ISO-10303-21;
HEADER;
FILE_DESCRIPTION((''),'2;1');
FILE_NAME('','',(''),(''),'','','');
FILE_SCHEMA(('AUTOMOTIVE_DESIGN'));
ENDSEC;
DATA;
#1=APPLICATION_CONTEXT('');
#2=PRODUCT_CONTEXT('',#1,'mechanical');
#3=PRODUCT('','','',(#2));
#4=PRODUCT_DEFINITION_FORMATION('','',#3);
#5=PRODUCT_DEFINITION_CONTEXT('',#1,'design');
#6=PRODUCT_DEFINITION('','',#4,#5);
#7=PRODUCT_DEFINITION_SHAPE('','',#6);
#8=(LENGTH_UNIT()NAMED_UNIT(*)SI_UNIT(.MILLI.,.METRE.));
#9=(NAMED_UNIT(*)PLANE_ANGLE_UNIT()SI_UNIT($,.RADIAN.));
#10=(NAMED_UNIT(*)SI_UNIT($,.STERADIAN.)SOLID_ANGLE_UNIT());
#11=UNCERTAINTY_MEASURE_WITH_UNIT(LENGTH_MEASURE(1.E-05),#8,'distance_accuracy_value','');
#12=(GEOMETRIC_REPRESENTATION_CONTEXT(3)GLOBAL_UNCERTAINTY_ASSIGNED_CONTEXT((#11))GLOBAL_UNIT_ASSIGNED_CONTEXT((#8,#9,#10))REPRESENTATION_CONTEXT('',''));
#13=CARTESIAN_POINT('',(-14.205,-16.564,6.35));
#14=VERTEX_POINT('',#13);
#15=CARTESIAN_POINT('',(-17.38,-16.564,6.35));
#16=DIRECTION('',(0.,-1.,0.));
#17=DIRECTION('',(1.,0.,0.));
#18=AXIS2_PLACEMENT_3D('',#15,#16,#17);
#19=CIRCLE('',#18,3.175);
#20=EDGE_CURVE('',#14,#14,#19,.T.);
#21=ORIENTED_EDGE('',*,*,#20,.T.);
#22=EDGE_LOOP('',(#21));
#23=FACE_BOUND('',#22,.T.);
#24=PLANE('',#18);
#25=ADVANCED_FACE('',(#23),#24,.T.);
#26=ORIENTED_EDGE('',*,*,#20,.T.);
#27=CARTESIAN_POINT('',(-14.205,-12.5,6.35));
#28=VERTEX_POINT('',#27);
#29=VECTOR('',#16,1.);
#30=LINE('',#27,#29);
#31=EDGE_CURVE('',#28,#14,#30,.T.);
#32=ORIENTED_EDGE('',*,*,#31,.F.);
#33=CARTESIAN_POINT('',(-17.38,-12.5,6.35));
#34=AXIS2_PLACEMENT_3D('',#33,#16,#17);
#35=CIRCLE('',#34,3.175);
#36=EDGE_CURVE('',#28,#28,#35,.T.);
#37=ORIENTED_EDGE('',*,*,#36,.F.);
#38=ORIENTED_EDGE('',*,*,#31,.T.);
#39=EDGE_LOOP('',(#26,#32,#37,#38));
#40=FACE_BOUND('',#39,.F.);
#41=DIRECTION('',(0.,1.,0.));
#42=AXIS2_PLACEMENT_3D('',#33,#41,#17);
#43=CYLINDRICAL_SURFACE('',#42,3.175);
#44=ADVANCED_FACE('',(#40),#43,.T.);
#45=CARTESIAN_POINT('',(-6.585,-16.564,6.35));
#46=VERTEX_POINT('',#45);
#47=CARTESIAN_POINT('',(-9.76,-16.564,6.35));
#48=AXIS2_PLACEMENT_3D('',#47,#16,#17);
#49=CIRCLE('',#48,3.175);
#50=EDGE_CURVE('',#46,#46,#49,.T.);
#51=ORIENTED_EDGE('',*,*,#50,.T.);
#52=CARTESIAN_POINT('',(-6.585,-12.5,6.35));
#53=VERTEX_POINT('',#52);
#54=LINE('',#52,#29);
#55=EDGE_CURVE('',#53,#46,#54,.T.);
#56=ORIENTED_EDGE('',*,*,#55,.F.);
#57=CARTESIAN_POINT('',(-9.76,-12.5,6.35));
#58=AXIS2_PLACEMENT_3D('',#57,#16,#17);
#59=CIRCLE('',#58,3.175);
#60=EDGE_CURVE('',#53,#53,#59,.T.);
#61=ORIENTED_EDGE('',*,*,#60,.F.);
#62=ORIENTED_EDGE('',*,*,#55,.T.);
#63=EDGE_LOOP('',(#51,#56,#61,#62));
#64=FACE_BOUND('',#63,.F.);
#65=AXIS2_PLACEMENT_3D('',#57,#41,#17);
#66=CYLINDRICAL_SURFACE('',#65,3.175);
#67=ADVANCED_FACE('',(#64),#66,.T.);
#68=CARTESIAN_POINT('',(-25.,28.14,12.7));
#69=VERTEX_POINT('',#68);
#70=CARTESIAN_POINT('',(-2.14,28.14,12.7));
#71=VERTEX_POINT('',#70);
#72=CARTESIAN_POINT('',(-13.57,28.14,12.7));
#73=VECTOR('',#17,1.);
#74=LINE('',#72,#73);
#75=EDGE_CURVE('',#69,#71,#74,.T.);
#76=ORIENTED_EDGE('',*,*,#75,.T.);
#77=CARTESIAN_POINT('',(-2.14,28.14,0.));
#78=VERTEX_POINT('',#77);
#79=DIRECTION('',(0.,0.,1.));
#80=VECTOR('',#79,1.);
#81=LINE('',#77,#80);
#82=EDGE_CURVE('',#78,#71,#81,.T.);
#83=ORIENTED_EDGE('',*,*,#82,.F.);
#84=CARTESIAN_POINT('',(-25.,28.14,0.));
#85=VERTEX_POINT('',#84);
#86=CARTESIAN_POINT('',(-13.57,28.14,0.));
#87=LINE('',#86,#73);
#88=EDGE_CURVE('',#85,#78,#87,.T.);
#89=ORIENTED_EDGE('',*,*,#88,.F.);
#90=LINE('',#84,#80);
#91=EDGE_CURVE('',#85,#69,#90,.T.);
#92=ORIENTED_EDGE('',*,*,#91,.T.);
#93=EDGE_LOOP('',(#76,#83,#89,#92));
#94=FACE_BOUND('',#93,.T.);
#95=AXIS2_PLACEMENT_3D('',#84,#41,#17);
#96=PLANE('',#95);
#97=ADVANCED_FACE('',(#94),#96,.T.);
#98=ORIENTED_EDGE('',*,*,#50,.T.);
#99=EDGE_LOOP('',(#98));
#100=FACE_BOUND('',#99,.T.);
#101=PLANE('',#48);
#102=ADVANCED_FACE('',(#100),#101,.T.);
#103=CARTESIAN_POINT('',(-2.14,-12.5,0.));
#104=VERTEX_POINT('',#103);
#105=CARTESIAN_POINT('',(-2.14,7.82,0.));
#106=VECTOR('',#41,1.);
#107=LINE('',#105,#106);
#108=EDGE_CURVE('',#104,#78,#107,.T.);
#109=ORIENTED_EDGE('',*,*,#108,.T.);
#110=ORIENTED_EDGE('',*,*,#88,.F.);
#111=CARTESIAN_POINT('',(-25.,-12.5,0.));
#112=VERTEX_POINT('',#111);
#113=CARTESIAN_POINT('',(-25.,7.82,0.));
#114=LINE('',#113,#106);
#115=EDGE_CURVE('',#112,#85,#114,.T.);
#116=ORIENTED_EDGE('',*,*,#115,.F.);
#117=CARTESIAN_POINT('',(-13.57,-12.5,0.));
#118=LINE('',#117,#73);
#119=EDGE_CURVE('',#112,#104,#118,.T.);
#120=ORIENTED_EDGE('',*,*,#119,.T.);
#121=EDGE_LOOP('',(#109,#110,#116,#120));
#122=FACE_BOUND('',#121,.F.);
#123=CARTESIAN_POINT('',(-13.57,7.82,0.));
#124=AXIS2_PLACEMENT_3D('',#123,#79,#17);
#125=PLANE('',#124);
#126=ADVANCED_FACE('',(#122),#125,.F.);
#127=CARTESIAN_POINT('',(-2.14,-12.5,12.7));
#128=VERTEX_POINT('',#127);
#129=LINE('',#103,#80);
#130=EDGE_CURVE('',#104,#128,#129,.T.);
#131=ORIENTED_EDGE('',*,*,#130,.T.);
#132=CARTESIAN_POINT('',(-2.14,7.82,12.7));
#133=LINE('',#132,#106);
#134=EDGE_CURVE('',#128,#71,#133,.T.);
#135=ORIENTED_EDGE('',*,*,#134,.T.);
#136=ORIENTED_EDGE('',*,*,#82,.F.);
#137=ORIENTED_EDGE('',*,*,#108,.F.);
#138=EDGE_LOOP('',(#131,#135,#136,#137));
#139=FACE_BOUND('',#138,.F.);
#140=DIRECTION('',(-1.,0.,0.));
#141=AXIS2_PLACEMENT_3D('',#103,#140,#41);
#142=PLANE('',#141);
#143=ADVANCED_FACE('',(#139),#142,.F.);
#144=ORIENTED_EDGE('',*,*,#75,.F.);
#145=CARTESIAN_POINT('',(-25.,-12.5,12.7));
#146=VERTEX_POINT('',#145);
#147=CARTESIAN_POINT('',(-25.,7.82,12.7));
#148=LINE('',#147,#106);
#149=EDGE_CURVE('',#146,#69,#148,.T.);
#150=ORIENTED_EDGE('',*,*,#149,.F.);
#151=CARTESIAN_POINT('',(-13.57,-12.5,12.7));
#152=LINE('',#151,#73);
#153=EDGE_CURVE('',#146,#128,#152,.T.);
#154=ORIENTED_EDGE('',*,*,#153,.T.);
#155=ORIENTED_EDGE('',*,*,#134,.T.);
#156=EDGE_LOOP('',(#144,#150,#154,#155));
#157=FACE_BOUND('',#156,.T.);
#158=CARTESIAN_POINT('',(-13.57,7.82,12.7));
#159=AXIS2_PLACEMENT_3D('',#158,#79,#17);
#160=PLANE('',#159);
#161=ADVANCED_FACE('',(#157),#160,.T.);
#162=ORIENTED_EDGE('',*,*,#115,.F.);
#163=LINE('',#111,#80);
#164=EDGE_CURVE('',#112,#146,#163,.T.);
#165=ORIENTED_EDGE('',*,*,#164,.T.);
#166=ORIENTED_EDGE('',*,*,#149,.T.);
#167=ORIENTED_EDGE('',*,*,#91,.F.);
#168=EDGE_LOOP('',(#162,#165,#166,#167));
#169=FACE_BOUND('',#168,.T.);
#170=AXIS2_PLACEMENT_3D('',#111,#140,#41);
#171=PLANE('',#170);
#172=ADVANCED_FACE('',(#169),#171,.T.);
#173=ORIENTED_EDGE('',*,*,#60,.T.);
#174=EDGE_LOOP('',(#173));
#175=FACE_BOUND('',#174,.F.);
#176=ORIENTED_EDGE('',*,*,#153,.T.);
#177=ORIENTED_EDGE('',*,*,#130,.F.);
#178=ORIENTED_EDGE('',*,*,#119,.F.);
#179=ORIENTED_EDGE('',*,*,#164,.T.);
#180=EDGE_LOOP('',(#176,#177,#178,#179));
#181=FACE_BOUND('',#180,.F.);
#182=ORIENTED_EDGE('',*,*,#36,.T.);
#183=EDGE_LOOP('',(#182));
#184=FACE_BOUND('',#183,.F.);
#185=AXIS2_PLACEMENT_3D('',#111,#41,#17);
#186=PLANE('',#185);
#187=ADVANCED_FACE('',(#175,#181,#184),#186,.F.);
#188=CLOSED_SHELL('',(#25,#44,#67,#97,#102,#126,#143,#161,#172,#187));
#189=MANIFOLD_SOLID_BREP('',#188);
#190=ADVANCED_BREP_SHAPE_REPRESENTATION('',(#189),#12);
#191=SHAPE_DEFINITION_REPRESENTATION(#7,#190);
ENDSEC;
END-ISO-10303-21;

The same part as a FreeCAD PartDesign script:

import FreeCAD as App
import Part
import Sketcher

V = App.Vector
Q = App.Units.Quantity


def add_polygon(sketch, points):
    """Adds a closed chain of lines whose ends are joined by coincident constraints."""
    first, n = sketch.GeometryCount, len(points)
    for a, b in zip(points, points[1:] + points[:1]):
        sketch.addGeometry(Part.LineSegment(App.Vector(*a, 0), App.Vector(*b, 0)), False)
    for i in range(n):
        sketch.addConstraint(Sketcher.Constraint("Coincident", first + i, 2, first + (i + 1) % n, 1))

doc = App.newDocument("Part")
body = doc.addObject("PartDesign::Body", "Body")

sketch1 = body.newObject("Sketcher::SketchObject", "Sketch")
sketch1.AttachmentSupport = (doc.getObject("XY_Plane"), [""])
sketch1.MapMode = "FlatFace"
add_polygon(sketch1, [(-25, 28), (-25, -12), (-2, -12), (-2, 28)])
sketch1.addConstraint(Sketcher.Constraint("Vertical", 0))
sketch1.addConstraint(Sketcher.Constraint("Horizontal", 1))
sketch1.addConstraint(Sketcher.Constraint("Vertical", 2))
sketch1.addConstraint(Sketcher.Constraint("Horizontal", 3))
sketch1.addConstraint(Sketcher.Constraint("DistanceX", 1, 1, 1, 2, Q("0.9 in")))
sketch1.addConstraint(Sketcher.Constraint("DistanceY", 0, 2, 0, 1, Q("1.6 in")))
sketch1.addConstraint(Sketcher.Constraint("DistanceX", 0, 2, -1, 1, 25.0))
sketch1.addConstraint(Sketcher.Constraint("DistanceY", 0, 2, -1, 1, 12.5))
pad1 = body.newObject("PartDesign::Pad", "Pad")
pad1.Profile = sketch1
pad1.Length = Q("0.5 in")

sketch2 = body.newObject("Sketcher::SketchObject", "Sketch001")
sketch2.AttachmentSupport = (doc.getObject("XZ_Plane"), [""])
sketch2.MapMode = "FlatFace"
sketch2.AttachmentOffset = App.Placement(V(0, 0, 12.5), App.Rotation())
sketch2.addGeometry(Part.Circle(V(-17.4, 6.3, 0), V(0, 0, 1), 3.2), False)
sketch2.addGeometry(Part.Circle(V(-9.8, 6.3, 0), V(0, 0, 1), 3.2), False)
sketch2.addConstraint(Sketcher.Constraint("Equal", 0, 1))
sketch2.addConstraint(Sketcher.Constraint("Horizontal", 0, 3, 1, 3))
sketch2.addConstraint(Sketcher.Constraint("Diameter", 0, Q("0.25 in")))
sketch2.addConstraint(Sketcher.Constraint("DistanceX", 0, 3, 1, 3, Q("0.3 in")))
sketch2.addConstraint(Sketcher.Constraint("DistanceY", -1, 1, 0, 3, Q("0.25 in")))
sketch2.addConstraint(Sketcher.Constraint("DistanceX", 0, 3, -1, 1, 17.38))
pad2 = body.newObject("PartDesign::Pad", "Pad001")
pad2.Profile = sketch2
pad2.Length = Q("0.16 in")

doc.recompute()
